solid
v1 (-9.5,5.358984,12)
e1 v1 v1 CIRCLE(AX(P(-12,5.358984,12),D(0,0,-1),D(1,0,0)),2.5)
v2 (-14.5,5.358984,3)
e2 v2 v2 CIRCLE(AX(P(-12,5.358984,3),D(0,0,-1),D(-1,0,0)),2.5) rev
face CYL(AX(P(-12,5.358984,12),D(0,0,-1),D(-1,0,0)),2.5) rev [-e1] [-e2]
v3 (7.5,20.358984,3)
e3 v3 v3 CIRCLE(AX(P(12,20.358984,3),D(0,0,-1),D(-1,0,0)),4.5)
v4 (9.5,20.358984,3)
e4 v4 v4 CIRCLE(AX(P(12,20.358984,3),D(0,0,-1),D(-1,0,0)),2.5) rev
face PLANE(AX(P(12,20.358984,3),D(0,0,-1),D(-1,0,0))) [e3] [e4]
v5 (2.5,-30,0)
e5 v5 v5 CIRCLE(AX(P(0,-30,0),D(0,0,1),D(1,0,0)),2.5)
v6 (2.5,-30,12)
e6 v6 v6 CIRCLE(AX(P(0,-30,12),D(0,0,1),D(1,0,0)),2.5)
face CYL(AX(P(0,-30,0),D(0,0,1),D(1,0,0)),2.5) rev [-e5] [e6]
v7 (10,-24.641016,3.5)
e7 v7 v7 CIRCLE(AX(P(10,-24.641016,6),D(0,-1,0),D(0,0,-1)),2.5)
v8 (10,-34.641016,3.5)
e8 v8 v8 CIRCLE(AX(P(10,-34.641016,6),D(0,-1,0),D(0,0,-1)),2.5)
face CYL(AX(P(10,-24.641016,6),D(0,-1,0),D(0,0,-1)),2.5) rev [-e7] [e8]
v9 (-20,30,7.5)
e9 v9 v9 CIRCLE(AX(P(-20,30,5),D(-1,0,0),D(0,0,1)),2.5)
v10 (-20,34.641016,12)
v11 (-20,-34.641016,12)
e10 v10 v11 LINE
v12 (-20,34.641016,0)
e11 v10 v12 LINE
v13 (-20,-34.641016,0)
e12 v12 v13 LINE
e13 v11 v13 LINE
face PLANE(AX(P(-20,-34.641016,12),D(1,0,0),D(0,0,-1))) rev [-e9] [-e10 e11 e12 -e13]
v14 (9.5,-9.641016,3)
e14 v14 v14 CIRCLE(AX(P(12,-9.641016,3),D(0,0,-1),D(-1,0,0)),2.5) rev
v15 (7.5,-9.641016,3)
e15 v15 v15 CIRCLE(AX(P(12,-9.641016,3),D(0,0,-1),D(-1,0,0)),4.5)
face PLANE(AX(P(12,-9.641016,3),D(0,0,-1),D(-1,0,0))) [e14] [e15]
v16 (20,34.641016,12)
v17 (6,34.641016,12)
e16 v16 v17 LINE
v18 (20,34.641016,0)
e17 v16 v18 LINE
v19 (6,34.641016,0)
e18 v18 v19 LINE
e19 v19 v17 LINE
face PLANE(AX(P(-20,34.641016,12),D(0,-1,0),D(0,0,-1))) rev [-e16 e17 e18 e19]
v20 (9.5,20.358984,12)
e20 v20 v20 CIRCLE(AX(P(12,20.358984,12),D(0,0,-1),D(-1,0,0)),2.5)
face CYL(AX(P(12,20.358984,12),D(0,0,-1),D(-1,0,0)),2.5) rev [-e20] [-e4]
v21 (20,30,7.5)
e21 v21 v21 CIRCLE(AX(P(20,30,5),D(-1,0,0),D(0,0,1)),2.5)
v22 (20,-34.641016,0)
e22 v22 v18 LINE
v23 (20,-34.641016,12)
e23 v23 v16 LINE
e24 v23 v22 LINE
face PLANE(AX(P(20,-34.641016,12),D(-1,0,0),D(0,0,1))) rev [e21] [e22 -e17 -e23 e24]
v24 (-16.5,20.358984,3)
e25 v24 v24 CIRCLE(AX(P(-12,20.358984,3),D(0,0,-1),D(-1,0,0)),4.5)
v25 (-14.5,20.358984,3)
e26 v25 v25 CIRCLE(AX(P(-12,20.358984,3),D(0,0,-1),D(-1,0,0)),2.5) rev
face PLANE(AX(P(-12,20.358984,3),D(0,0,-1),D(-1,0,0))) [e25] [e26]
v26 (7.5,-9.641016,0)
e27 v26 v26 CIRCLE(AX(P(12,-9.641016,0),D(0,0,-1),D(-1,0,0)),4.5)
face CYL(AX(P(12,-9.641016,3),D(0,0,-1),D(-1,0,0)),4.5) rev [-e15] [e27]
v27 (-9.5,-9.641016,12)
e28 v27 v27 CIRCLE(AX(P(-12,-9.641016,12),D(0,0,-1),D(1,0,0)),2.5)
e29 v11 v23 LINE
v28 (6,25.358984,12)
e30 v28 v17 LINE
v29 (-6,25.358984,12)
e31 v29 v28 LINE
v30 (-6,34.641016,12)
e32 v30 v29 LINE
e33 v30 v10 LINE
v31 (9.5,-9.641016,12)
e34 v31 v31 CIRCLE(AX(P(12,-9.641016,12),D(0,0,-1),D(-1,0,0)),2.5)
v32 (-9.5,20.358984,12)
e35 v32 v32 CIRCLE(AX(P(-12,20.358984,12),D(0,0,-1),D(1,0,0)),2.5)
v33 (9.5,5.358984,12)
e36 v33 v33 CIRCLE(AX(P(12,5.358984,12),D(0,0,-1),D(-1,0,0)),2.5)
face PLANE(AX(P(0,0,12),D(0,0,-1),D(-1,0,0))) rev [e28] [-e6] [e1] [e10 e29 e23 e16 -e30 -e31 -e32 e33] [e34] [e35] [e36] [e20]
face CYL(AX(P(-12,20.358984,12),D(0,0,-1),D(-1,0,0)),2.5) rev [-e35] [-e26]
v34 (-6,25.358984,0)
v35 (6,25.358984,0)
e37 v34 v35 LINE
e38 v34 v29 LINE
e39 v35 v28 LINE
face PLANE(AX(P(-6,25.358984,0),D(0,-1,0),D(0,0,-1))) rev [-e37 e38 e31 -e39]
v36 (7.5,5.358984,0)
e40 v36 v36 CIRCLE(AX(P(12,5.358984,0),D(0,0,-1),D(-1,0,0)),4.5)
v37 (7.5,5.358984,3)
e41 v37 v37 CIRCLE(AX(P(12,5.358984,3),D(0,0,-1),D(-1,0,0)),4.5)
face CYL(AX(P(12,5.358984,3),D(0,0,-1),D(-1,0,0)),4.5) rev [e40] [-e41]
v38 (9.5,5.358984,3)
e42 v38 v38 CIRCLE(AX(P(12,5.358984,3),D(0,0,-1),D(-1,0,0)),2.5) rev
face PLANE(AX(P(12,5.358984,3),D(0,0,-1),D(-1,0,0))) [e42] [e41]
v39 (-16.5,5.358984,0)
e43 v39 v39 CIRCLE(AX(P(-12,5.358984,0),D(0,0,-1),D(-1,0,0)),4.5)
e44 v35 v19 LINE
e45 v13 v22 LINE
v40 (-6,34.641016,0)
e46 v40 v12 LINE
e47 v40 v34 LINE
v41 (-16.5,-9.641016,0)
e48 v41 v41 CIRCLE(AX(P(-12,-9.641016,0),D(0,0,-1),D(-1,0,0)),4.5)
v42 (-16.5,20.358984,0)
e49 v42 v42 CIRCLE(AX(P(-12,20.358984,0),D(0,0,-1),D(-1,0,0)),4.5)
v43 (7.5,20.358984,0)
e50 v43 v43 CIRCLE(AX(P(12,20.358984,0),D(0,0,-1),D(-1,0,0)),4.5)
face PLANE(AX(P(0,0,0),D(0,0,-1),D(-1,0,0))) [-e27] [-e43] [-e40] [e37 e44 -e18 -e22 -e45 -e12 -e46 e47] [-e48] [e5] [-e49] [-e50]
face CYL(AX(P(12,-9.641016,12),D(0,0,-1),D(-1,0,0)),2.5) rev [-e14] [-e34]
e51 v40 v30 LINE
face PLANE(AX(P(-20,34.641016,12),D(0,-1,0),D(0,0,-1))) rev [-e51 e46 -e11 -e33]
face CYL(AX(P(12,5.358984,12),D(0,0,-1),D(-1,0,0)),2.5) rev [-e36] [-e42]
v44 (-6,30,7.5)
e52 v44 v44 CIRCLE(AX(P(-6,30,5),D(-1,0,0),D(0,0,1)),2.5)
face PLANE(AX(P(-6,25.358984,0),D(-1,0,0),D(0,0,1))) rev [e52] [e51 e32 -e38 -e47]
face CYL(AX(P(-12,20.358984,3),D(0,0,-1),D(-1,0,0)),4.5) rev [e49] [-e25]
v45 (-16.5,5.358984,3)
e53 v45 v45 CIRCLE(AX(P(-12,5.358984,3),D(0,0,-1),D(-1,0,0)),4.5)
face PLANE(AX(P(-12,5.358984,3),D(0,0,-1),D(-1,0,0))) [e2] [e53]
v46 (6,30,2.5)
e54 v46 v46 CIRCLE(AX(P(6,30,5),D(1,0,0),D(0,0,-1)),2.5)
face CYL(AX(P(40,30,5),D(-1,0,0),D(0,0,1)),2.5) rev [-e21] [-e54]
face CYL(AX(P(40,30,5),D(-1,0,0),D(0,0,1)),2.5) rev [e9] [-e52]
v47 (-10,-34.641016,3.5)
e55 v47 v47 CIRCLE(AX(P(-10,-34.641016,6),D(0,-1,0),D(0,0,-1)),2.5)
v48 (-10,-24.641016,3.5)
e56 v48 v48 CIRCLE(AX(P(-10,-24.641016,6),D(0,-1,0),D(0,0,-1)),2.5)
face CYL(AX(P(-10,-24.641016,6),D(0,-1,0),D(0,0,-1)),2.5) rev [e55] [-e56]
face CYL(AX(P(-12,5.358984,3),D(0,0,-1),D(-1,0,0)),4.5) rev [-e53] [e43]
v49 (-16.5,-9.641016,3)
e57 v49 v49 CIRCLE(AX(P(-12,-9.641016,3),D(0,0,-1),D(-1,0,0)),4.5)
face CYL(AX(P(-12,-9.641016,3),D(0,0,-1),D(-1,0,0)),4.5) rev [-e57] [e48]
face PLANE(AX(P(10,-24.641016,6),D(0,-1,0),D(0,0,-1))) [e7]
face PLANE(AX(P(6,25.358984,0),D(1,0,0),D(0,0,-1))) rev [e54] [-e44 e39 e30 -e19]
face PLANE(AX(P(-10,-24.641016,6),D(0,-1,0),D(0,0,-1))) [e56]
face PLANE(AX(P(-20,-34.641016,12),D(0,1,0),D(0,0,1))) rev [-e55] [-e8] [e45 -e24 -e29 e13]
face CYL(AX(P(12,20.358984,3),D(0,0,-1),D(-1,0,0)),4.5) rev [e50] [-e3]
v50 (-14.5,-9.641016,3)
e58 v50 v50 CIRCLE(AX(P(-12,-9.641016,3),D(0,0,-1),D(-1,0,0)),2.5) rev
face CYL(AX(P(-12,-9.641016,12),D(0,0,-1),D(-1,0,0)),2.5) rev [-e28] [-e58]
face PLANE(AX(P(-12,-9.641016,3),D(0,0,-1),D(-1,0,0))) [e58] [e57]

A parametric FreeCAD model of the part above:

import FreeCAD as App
import Part
import Sketcher

V = App.Vector


def add_polygon(sketch, points):
    """Adds a closed chain of lines whose ends are joined by coincident constraints."""
    first, n = sketch.GeometryCount, len(points)
    for a, b in zip(points, points[1:] + points[:1]):
        sketch.addGeometry(Part.LineSegment(App.Vector(*a, 0), App.Vector(*b, 0)), False)
    for i in range(n):
        sketch.addConstraint(Sketcher.Constraint("Coincident", first + i, 2, first + (i + 1) % n, 1))

doc = App.newDocument("Part")
body = doc.addObject("PartDesign::Body", "Body")

# Sketch on XY plane
sketch1 = doc.addObject("Sketcher::SketchObject", "Sketch")
body.addObject(sketch1)
sketch1.AttachmentSupport = (doc.XY_Plane, [""])
sketch1.MapMode = "FlatFace"
add_polygon(sketch1, [(-20, 34.641016), (-20, -34.641016), (20, -34.641016), (20, 34.641016)])  # lines 0-3
sketch1.addConstraint(Sketcher.Constraint("Vertical", 0))
sketch1.addConstraint(Sketcher.Constraint("Horizontal", 1))
sketch1.addConstraint(Sketcher.Constraint("Vertical", 2))
sketch1.addConstraint(Sketcher.Constraint("Horizontal", 3))
sketch1.addConstraint(Sketcher.Constraint("Symmetric", 0, 2, 2, 2, -1, 1))
sketch1.addConstraint(Sketcher.Constraint("DistanceX", 1, 1, 1, 2, 40.0))
sketch1.addConstraint(Sketcher.Constraint("DistanceY", 0, 2, 0, 1, 69.282032))
pad1 = doc.addObject("PartDesign::Pad", "Pad")
body.addObject(pad1)
pad1.Profile = sketch1
pad1.Length = 12

# Sketch on XY plane
sketch2 = doc.addObject("Sketcher::SketchObject", "Sketch001")
body.addObject(sketch2)
sketch2.AttachmentSupport = (doc.XY_Plane, [""])
sketch2.MapMode = "FlatFace"
sketch2.AttachmentOffset = App.Placement(V(0, 0, 12), App.Rotation())
sketch2.addGeometry(Part.Circle(V(0, -30, 0), V(0, 0, 1), 2.5), False)  # 0
add_polygon(sketch2, [(-6, 34.641016), (-6, 25.358984), (6, 25.358984), (6, 34.641016)])  # lines 1-4
sketch2.addConstraint(Sketcher.Constraint("Vertical", 1))
sketch2.addConstraint(Sketcher.Constraint("Horizontal", 2))
sketch2.addConstraint(Sketcher.Constraint("Vertical", 3))
sketch2.addConstraint(Sketcher.Constraint("Horizontal", 4))
sketch2.addConstraint(Sketcher.Constraint("PointOnObject", 0, 3, -2))
sketch2.addConstraint(Sketcher.Constraint("Diameter", 0, 5.0))
sketch2.addConstraint(Sketcher.Constraint("DistanceX", 2, 1, 2, 2, 12.0))
sketch2.addConstraint(Sketcher.Constraint("DistanceY", 0, 3, -1, 1, 30.0))
sketch2.addConstraint(Sketcher.Constraint("DistanceX", 1, 2, -1, 1, 6.0))
sketch2.addConstraint(Sketcher.Constraint("DistanceY", 1, 2, 1, 1, 9.282032))
sketch2.addConstraint(Sketcher.Constraint("DistanceY", -1, 1, 1, 2, 25.358984))
pocket1 = doc.addObject("PartDesign::Pocket", "Pocket")
body.addObject(pocket1)
pocket1.Profile = sketch2
pocket1.Length = 12

# Sketch on YZ plane
sketch3 = doc.addObject("Sketcher::SketchObject", "Sketch002")
body.addObject(sketch3)
sketch3.AttachmentSupport = (doc.YZ_Plane, [""])
sketch3.MapMode = "FlatFace"
sketch3.AttachmentOffset = App.Placement(V(0, 0, -20), App.Rotation())
sketch3.addGeometry(Part.Circle(V(30, 5, 0), V(0, 0, 1), 2.5), False)
sketch3.addConstraint(Sketcher.Constraint("Diameter", 0, 5.0))
sketch3.addConstraint(Sketcher.Constraint("DistanceX", -1, 1, 0, 3, 30.0))
sketch3.addConstraint(Sketcher.Constraint("DistanceY", -1, 1, 0, 3, 5.0))
pocket2 = doc.addObject("PartDesign::Pocket", "Pocket001")
body.addObject(pocket2)
pocket2.Profile = sketch3
pocket2.Length = 60
pocket2.Reversed = True

# Sketch on XY plane
sketch4 = doc.addObject("Sketcher::SketchObject", "Sketch003")
body.addObject(sketch4)
sketch4.AttachmentSupport = (doc.XY_Plane, [""])
sketch4.MapMode = "FlatFace"
sketch4.addGeometry(Part.Circle(V(12, -9.641016, 0), V(0, 0, 1), 2.5), False)
sketch4.addGeometry(Part.Circle(V(12, 5.358984, 0), V(0, 0, 1), 2.5), False)
sketch4.addGeometry(Part.Circle(V(12, 20.358984, 0), V(0, 0, 1), 2.5), False)
sketch4.addGeometry(Part.Circle(V(-12, 20.358984, 0), V(0, 0, 1), 2.5), False)
sketch4.addGeometry(Part.Circle(V(-12, 5.358984, 0), V(0, 0, 1), 2.5), False)
sketch4.addGeometry(Part.Circle(V(-12, -9.641016, 0), V(0, 0, 1), 2.5), False)
sketch4.addConstraint(Sketcher.Constraint("Equal", 0, 1))
sketch4.addConstraint(Sketcher.Constraint("Equal", 1, 2))
sketch4.addConstraint(Sketcher.Constraint("Equal", 2, 3))
sketch4.addConstraint(Sketcher.Constraint("Equal", 3, 4))
sketch4.addConstraint(Sketcher.Constraint("Equal", 4, 5))
sketch4.addConstraint(Sketcher.Constraint("Symmetric", 2, 3, 3, 3, -2))
sketch4.addConstraint(Sketcher.Constraint("Symmetric", 1, 3, 4, 3, -2))
sketch4.addConstraint(Sketcher.Constraint("Symmetric", 0, 3, 5, 3, -2))
sketch4.addConstraint(Sketcher.Constraint("Vertical", 0, 3, 1, 3))
sketch4.addConstraint(Sketcher.Constraint("Vertical", 1, 3, 2, 3))
sketch4.addConstraint(Sketcher.Constraint("Diameter", 0, 5.0))
sketch4.addConstraint(Sketcher.Constraint("DistanceX", -1, 1, 0, 3, 12.0))
sketch4.addConstraint(Sketcher.Constraint("DistanceY", 0, 3, 1, 3, 15.0))
sketch4.addConstraint(Sketcher.Constraint("DistanceY", 1, 3, 2, 3, 15.0))
sketch4.addConstraint(Sketcher.Constraint("DistanceY", 0, 3, -1, 1, 9.641016))
pocket3 = doc.addObject("PartDesign::Pocket", "Pocket002")
body.addObject(pocket3)
pocket3.Profile = sketch4
pocket3.Length = 12
pocket3.Reversed = True

# Sketch on XY plane
sketch5 = doc.addObject("Sketcher::SketchObject", "Sketch004")
body.addObject(sketch5)
sketch5.AttachmentSupport = (doc.XY_Plane, [""])
sketch5.MapMode = "FlatFace"
sketch5.addGeometry(Part.Circle(V(12, -9.641016, 0), V(0, 0, 1), 4.5), False)
sketch5.addGeometry(Part.Circle(V(12, 5.358984, 0), V(0, 0, 1), 4.5), False)
sketch5.addGeometry(Part.Circle(V(12, 20.358984, 0), V(0, 0, 1), 4.5), False)
sketch5.addGeometry(Part.Circle(V(-12, -9.641016, 0), V(0, 0, 1), 4.5), False)
sketch5.addGeometry(Part.Circle(V(-12, 5.358984, 0), V(0, 0, 1), 4.5), False)
sketch5.addGeometry(Part.Circle(V(-12, 20.358984, 0), V(0, 0, 1), 4.5), False)
sketch5.addConstraint(Sketcher.Constraint("Equal", 0, 1))
sketch5.addConstraint(Sketcher.Constraint("Equal", 1, 2))
sketch5.addConstraint(Sketcher.Constraint("Equal", 2, 3))
sketch5.addConstraint(Sketcher.Constraint("Equal", 3, 4))
sketch5.addConstraint(Sketcher.Constraint("Equal", 4, 5))
sketch5.addConstraint(Sketcher.Constraint("Symmetric", 0, 3, 3, 3, -2))
sketch5.addConstraint(Sketcher.Constraint("Symmetric", 1, 3, 4, 3, -2))
sketch5.addConstraint(Sketcher.Constraint("Symmetric", 2, 3, 5, 3, -2))
sketch5.addConstraint(Sketcher.Constraint("Vertical", 0, 3, 1, 3))
sketch5.addConstraint(Sketcher.Constraint("Vertical", 1, 3, 2, 3))
sketch5.addConstraint(Sketcher.Constraint("Diameter", 0, 9.0))
sketch5.addConstraint(Sketcher.Constraint("DistanceX", -1, 1, 0, 3, 12.0))
sketch5.addConstraint(Sketcher.Constraint("DistanceY", 0, 3, 1, 3, 15.0))
sketch5.addConstraint(Sketcher.Constraint("DistanceY", 1, 3, 2, 3, 15.0))
sketch5.addConstraint(Sketcher.Constraint("DistanceY", 0, 3, -1, 1, 9.641016))
pocket4 = doc.addObject("PartDesign::Pocket", "Pocket003")
body.addObject(pocket4)
pocket4.Profile = sketch5
pocket4.Length = 3
pocket4.Reversed = True

# Sketch on XZ plane
sketch6 = doc.addObject("Sketcher::SketchObject", "Sketch005")
body.addObject(sketch6)
sketch6.AttachmentSupport = (doc.XZ_Plane, [""])
sketch6.MapMode = "FlatFace"
sketch6.AttachmentOffset = App.Placement(V(0, 0, 34.641016), App.Rotation())
sketch6.addGeometry(Part.Circle(V(-10, 6, 0), V(0, 0, 1), 2.5), False)
sketch6.addGeometry(Part.Circle(V(10, 6, 0), V(0, 0, 1), 2.5), False)
sketch6.addConstraint(Sketcher.Constraint("Equal", 0, 1))
sketch6.addConstraint(Sketcher.Constraint("Symmetric", 0, 3, 1, 3, -2))
sketch6.addConstraint(Sketcher.Constraint("Diameter", 0, 5.0))
sketch6.addConstraint(Sketcher.Constraint("DistanceX", 0, 3, -1, 1, 10.0))
sketch6.addConstraint(Sketcher.Constraint("DistanceY", -1, 1, 0, 3, 6.0))
pocket5 = doc.addObject("PartDesign::Pocket", "Pocket004")
body.addObject(pocket5)
pocket5.Profile = sketch6
pocket5.Length = 10

doc.recompute()
